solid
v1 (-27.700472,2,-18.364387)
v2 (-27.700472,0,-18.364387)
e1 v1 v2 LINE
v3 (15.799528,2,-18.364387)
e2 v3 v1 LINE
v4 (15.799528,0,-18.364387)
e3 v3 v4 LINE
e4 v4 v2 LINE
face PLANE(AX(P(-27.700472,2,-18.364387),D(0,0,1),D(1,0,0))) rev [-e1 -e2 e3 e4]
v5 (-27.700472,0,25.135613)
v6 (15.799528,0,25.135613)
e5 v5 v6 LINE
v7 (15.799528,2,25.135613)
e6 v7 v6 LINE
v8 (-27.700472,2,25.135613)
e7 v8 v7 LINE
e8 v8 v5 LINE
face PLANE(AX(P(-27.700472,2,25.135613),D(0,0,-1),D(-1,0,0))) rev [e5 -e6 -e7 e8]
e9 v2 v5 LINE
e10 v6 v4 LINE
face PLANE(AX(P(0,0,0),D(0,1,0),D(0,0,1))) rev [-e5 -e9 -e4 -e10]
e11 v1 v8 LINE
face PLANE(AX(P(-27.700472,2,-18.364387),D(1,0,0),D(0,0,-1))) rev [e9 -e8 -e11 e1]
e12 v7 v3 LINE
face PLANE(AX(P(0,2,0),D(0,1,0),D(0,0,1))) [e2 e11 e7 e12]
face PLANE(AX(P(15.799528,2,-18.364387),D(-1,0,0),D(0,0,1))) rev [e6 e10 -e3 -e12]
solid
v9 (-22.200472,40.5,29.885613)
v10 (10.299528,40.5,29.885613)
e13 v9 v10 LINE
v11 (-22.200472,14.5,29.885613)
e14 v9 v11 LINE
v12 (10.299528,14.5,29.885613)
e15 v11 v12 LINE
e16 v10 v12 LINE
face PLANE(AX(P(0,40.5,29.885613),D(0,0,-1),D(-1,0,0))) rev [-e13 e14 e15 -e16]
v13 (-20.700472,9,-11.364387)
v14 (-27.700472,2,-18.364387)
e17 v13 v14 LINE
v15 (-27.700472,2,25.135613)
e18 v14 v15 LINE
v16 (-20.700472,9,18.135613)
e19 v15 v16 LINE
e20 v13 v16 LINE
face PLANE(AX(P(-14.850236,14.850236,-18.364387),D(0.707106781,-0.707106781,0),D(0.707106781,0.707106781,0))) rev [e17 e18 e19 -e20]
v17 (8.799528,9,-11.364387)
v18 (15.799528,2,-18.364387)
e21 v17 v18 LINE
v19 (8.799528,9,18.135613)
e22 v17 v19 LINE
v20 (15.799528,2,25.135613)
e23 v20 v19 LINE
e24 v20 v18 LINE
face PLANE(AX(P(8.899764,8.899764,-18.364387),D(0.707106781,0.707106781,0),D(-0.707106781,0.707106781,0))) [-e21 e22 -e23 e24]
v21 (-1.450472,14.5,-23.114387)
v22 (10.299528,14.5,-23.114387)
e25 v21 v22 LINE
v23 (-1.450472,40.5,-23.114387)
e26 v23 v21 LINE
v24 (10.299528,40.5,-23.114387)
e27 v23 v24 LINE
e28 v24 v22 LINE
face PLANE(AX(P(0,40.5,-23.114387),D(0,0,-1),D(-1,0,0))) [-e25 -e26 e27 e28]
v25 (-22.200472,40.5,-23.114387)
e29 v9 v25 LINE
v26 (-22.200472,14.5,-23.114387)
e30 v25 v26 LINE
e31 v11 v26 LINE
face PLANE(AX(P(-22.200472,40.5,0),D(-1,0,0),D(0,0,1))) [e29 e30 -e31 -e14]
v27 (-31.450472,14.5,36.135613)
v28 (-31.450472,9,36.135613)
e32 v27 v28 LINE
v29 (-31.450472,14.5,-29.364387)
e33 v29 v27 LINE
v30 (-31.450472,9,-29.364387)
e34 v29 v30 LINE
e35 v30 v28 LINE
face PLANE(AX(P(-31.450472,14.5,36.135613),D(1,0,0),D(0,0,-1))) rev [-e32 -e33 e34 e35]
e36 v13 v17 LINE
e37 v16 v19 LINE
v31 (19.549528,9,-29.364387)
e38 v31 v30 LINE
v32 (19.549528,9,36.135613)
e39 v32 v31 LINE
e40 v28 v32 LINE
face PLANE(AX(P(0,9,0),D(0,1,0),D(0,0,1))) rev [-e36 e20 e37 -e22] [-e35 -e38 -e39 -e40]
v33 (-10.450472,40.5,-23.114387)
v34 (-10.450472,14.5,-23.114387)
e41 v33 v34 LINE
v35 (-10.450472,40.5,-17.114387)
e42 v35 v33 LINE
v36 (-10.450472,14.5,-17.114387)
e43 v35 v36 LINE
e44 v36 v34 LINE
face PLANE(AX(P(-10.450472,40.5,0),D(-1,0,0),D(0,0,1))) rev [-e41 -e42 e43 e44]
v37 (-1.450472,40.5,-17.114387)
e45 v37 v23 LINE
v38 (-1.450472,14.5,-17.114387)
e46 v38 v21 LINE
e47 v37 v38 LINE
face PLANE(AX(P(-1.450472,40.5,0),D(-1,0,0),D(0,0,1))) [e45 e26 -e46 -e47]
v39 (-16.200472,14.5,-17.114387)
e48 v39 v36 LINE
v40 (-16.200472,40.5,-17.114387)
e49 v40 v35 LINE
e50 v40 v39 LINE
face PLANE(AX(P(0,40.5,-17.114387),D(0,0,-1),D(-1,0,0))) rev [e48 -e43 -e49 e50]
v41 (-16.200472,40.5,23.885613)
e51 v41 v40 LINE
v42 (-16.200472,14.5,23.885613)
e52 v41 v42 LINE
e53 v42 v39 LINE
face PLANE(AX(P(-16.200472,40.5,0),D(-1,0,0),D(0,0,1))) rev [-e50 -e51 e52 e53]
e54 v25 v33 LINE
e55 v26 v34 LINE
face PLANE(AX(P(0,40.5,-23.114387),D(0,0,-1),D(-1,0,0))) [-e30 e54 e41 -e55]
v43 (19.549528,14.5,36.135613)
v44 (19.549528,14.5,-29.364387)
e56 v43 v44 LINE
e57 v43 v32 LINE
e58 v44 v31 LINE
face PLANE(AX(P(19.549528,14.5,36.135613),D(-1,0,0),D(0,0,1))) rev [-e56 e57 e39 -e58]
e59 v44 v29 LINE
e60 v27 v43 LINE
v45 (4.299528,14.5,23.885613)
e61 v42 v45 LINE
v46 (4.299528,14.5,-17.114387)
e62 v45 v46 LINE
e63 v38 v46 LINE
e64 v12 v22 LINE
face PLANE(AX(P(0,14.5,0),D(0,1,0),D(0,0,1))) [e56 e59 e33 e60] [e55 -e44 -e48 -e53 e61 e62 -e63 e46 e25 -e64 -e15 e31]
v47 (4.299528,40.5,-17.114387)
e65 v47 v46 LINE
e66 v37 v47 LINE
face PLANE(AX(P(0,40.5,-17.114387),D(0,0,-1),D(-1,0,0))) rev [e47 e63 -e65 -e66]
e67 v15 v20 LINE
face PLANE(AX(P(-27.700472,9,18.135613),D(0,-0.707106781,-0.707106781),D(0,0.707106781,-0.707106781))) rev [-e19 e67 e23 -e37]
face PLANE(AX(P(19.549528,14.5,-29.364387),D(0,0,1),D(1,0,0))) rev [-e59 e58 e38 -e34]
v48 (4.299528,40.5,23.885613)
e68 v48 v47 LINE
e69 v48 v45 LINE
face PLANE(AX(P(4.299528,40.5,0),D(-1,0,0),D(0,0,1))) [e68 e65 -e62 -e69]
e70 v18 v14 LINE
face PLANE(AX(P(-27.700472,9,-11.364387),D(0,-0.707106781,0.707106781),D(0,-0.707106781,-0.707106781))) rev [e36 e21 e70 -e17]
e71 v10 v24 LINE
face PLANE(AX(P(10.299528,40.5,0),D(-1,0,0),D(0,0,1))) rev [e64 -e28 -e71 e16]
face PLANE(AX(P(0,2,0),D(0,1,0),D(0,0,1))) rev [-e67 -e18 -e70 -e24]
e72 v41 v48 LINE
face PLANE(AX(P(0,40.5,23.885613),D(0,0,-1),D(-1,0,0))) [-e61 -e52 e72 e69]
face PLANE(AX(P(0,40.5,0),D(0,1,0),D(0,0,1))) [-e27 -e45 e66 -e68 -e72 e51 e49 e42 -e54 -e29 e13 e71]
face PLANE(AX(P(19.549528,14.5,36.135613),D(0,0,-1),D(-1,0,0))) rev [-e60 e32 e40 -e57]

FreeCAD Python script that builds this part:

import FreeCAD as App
import Part
import Sketcher

V = App.Vector


def add_polygon(sketch, points):
    """Adds a closed chain of lines whose ends are joined by coincident constraints."""
    first, n = sketch.GeometryCount, len(points)
    for a, b in zip(points, points[1:] + points[:1]):
        sketch.addGeometry(Part.LineSegment(App.Vector(*a, 0), App.Vector(*b, 0)), False)
    for i in range(n):
        sketch.addConstraint(Sketcher.Constraint("Coincident", first + i, 2, first + (i + 1) % n, 1))

doc = App.newDocument("Part")
body = doc.addObject("PartDesign::Body", "Body")

# Sketch on XZ plane
sketch1 = body.newObject("Sketcher::SketchObject", "Sketch")
sketch1.AttachmentSupport = (doc.getObject("XZ_Plane"), [""])
sketch1.MapMode = "FlatFace"
add_polygon(sketch1, [(-28, -18), (-28, 25), (16, 25), (16, -18)])  # lines 0-3
sketch1.addConstraint([
    Sketcher.Constraint("Vertical", 0),
    Sketcher.Constraint("Horizontal", 1),
    Sketcher.Constraint("Vertical", 2),
    Sketcher.Constraint("Horizontal", 3),
    Sketcher.Constraint("Equal", 3, 0),
    Sketcher.Constraint("DistanceX", 1, 1, 1, 2, 43.5),
    Sketcher.Constraint("DistanceX", 0, 2, -1, 1, 27.700472),
    Sketcher.Constraint("DistanceY", -1, 1, 0, 2, 25.135613),
])
pad1 = body.newObject("PartDesign::Pad", "Pad")
pad1.Profile = sketch1
pad1.Length = 2
pad1.Reversed = True
body2 = doc.addObject("PartDesign::Body", "Body001")

# Sketch on XZ plane
sketch2 = body2.newObject("Sketcher::SketchObject", "Sketch001")
sketch2.AttachmentSupport = (doc.getObject("XZ_Plane001"), [""])
sketch2.MapMode = "FlatFace"
sketch2.AttachmentOffset = App.Placement(V(0, 0, -2), App.Rotation())
add_polygon(sketch2, [(-28, -18), (-28, 25), (16, 25), (16, -18)])  # lines 0-3
sketch2.addConstraint([
    Sketcher.Constraint("Vertical", 0),
    Sketcher.Constraint("Horizontal", 1),
    Sketcher.Constraint("Vertical", 2),
    Sketcher.Constraint("Horizontal", 3),
    Sketcher.Constraint("Equal", 3, 0),
    Sketcher.Constraint("DistanceX", 1, 1, 1, 2, 43.5),
    Sketcher.Constraint("DistanceX", 0, 2, -1, 1, 27.700472),
    Sketcher.Constraint("DistanceY", -1, 1, 0, 2, 25.135613),
])
pad2 = body2.newObject("PartDesign::Pad", "Pad001")
pad2.Profile = sketch2
pad2.Length = 7
pad2.Reversed = True

# Sketch on XY plane
sketch3 = body2.newObject("Sketcher::SketchObject", "Sketch002")
sketch3.AttachmentSupport = (doc.getObject("XY_Plane001"), [""])
sketch3.MapMode = "FlatFace"
sketch3.AttachmentOffset = App.Placement(V(0, 0, 25.135613), App.Rotation())
add_polygon(sketch3, [(16, 9), (9, 9), (16, 2)])  # lines 0-2
add_polygon(sketch3, [(-28, 9), (-28, 2), (-21, 9)])  # lines 3-5
sketch3.addConstraint([
    Sketcher.Constraint("Horizontal", 0),
    Sketcher.Constraint("Vertical", 2),
    Sketcher.Constraint("Vertical", 3),
    Sketcher.Constraint("Horizontal", 5),
    Sketcher.Constraint("Perpendicular", 1, 4),
    Sketcher.Constraint("Horizontal", 1, 2, 3, 2),
    Sketcher.Constraint("Horizontal", 2, 2, 4, 2),
    Sketcher.Constraint("Equal", 0, 5),
    Sketcher.Constraint("DistanceX", 0, 2, 0, 1, 7.0),
    Sketcher.Constraint("DistanceY", -1, 1, 0, 2, 9.0),
    Sketcher.Constraint("DistanceX", 3, 2, 0, 2, 36.5),
    Sketcher.Constraint("DistanceX", -1, 1, 0, 2, 8.799528),
])
pocket1 = body2.newObject("PartDesign::Pocket", "Pocket")
pocket1.Profile = sketch3
pocket1.Type = "ThroughAll"

# Sketch on YZ plane
sketch4 = body2.newObject("Sketcher::SketchObject", "Sketch003")
sketch4.AttachmentSupport = (doc.getObject("YZ_Plane001"), [""])
sketch4.MapMode = "FlatFace"
sketch4.AttachmentOffset = App.Placement(V(0, 0, 15.799528), App.Rotation())
add_polygon(sketch4, [(9, 25), (2, 25), (9, 18)])  # lines 0-2
add_polygon(sketch4, [(2, -18), (9, -18), (9, -11)])  # lines 3-5
sketch4.addConstraint([
    Sketcher.Constraint("Horizontal", 0),
    Sketcher.Constraint("Vertical", 2),
    Sketcher.Constraint("Horizontal", 3),
    Sketcher.Constraint("Vertical", 4),
    Sketcher.Constraint("Perpendicular", 1, 5),
    Sketcher.Constraint("Vertical", 2, 2, 3, 2),
    Sketcher.Constraint("Vertical", 0, 2, 5, 2),
    Sketcher.Constraint("Equal", 3, 2),
    Sketcher.Constraint("DistanceX", 0, 2, 0, 1, 7.0),
    Sketcher.Constraint("DistanceX", -1, 1, 0, 2, 2.0),
    Sketcher.Constraint("DistanceY", 3, 2, 1, 2, 36.5),
    Sketcher.Constraint("DistanceY", -1, 1, 0, 2, 25.135613),
])
pocket2 = body2.newObject("PartDesign::Pocket", "Pocket001")
pocket2.Profile = sketch4
pocket2.Type = "ThroughAll"

# Sketch on XZ plane
sketch5 = body2.newObject("Sketcher::SketchObject", "Sketch004")
sketch5.AttachmentSupport = (doc.getObject("XZ_Plane001"), [""])
sketch5.MapMode = "FlatFace"
sketch5.AttachmentOffset = App.Placement(V(0, 0, -9), App.Rotation())
add_polygon(sketch5, [(-31, -29), (-31, 36), (20, 36), (20, -29)])  # lines 0-3
sketch5.addConstraint([
    Sketcher.Constraint("Vertical", 0),
    Sketcher.Constraint("Horizontal", 1),
    Sketcher.Constraint("Vertical", 2),
    Sketcher.Constraint("Horizontal", 3),
    Sketcher.Constraint("DistanceX", 1, 1, 1, 2, 51.0),
    Sketcher.Constraint("DistanceY", 0, 1, 0, 2, 65.5),
    Sketcher.Constraint("DistanceX", 0, 2, -1, 1, 31.450472),
    Sketcher.Constraint("DistanceY", -1, 1, 0, 2, 36.135613),
])
pad3 = body2.newObject("PartDesign::Pad", "Pad002")
pad3.Profile = sketch5
pad3.Length = 5.5
pad3.Reversed = True

# Sketch on XZ plane
sketch6 = body2.newObject("Sketcher::SketchObject", "Sketch005")
sketch6.AttachmentSupport = (doc.getObject("XZ_Plane001"), [""])
sketch6.MapMode = "FlatFace"
sketch6.AttachmentOffset = App.Placement(V(0, 0, -14.5), App.Rotation())
add_polygon(sketch6, [(-22, -23), (-22, 30), (10, 30), (10, -23), (-1, -23), (-1, -17), (4, -17), (4, 24), (-16, 24), (-16, -17), (-10, -17), (-10, -23)])  # lines 0-11
sketch6.addConstraint([
    Sketcher.Constraint("Vertical", 0),
    Sketcher.Constraint("Horizontal", 1),
    Sketcher.Constraint("Vertical", 2),
    Sketcher.Constraint("Horizontal", 3),
    Sketcher.Constraint("Vertical", 4),
    Sketcher.Constraint("Horizontal", 5),
    Sketcher.Constraint("Vertical", 6),
    Sketcher.Constraint("Horizontal", 7),
    Sketcher.Constraint("Vertical", 8),
    Sketcher.Constraint("Horizontal", 9),
    Sketcher.Constraint("Vertical", 10),
    Sketcher.Constraint("Horizontal", 11),
    Sketcher.Constraint("Horizontal", 5, 2, 8, 2),
    Sketcher.Constraint("Horizontal", 3, 2, 10, 2),
    Sketcher.Constraint("Equal", 5, 9),
    Sketcher.Constraint("Equal", 3, 11),
    Sketcher.Constraint("DistanceY", 0, 1, 0, 2, 53.0),
    Sketcher.Constraint("DistanceY", 4, 1, 4, 2, 6.0),
    Sketcher.Constraint("DistanceY", 6, 1, 6, 2, 41.0),
    Sketcher.Constraint("DistanceX", 1, 1, 1, 2, 32.5),
    Sketcher.Constraint("DistanceX", 7, 2, 7, 1, 20.5),
    Sketcher.Constraint("DistanceX", 9, 2, 4, 2, 9.0),
    Sketcher.Constraint("DistanceX", 0, 2, -1, 1, 22.200472),
    Sketcher.Constraint("DistanceY", -1, 1, 0, 2, 29.885613),
])
pad4 = body2.newObject("PartDesign::Pad", "Pad003")
pad4.Profile = sketch6
pad4.Length = 26
pad4.Reversed = True

doc.recompute()
